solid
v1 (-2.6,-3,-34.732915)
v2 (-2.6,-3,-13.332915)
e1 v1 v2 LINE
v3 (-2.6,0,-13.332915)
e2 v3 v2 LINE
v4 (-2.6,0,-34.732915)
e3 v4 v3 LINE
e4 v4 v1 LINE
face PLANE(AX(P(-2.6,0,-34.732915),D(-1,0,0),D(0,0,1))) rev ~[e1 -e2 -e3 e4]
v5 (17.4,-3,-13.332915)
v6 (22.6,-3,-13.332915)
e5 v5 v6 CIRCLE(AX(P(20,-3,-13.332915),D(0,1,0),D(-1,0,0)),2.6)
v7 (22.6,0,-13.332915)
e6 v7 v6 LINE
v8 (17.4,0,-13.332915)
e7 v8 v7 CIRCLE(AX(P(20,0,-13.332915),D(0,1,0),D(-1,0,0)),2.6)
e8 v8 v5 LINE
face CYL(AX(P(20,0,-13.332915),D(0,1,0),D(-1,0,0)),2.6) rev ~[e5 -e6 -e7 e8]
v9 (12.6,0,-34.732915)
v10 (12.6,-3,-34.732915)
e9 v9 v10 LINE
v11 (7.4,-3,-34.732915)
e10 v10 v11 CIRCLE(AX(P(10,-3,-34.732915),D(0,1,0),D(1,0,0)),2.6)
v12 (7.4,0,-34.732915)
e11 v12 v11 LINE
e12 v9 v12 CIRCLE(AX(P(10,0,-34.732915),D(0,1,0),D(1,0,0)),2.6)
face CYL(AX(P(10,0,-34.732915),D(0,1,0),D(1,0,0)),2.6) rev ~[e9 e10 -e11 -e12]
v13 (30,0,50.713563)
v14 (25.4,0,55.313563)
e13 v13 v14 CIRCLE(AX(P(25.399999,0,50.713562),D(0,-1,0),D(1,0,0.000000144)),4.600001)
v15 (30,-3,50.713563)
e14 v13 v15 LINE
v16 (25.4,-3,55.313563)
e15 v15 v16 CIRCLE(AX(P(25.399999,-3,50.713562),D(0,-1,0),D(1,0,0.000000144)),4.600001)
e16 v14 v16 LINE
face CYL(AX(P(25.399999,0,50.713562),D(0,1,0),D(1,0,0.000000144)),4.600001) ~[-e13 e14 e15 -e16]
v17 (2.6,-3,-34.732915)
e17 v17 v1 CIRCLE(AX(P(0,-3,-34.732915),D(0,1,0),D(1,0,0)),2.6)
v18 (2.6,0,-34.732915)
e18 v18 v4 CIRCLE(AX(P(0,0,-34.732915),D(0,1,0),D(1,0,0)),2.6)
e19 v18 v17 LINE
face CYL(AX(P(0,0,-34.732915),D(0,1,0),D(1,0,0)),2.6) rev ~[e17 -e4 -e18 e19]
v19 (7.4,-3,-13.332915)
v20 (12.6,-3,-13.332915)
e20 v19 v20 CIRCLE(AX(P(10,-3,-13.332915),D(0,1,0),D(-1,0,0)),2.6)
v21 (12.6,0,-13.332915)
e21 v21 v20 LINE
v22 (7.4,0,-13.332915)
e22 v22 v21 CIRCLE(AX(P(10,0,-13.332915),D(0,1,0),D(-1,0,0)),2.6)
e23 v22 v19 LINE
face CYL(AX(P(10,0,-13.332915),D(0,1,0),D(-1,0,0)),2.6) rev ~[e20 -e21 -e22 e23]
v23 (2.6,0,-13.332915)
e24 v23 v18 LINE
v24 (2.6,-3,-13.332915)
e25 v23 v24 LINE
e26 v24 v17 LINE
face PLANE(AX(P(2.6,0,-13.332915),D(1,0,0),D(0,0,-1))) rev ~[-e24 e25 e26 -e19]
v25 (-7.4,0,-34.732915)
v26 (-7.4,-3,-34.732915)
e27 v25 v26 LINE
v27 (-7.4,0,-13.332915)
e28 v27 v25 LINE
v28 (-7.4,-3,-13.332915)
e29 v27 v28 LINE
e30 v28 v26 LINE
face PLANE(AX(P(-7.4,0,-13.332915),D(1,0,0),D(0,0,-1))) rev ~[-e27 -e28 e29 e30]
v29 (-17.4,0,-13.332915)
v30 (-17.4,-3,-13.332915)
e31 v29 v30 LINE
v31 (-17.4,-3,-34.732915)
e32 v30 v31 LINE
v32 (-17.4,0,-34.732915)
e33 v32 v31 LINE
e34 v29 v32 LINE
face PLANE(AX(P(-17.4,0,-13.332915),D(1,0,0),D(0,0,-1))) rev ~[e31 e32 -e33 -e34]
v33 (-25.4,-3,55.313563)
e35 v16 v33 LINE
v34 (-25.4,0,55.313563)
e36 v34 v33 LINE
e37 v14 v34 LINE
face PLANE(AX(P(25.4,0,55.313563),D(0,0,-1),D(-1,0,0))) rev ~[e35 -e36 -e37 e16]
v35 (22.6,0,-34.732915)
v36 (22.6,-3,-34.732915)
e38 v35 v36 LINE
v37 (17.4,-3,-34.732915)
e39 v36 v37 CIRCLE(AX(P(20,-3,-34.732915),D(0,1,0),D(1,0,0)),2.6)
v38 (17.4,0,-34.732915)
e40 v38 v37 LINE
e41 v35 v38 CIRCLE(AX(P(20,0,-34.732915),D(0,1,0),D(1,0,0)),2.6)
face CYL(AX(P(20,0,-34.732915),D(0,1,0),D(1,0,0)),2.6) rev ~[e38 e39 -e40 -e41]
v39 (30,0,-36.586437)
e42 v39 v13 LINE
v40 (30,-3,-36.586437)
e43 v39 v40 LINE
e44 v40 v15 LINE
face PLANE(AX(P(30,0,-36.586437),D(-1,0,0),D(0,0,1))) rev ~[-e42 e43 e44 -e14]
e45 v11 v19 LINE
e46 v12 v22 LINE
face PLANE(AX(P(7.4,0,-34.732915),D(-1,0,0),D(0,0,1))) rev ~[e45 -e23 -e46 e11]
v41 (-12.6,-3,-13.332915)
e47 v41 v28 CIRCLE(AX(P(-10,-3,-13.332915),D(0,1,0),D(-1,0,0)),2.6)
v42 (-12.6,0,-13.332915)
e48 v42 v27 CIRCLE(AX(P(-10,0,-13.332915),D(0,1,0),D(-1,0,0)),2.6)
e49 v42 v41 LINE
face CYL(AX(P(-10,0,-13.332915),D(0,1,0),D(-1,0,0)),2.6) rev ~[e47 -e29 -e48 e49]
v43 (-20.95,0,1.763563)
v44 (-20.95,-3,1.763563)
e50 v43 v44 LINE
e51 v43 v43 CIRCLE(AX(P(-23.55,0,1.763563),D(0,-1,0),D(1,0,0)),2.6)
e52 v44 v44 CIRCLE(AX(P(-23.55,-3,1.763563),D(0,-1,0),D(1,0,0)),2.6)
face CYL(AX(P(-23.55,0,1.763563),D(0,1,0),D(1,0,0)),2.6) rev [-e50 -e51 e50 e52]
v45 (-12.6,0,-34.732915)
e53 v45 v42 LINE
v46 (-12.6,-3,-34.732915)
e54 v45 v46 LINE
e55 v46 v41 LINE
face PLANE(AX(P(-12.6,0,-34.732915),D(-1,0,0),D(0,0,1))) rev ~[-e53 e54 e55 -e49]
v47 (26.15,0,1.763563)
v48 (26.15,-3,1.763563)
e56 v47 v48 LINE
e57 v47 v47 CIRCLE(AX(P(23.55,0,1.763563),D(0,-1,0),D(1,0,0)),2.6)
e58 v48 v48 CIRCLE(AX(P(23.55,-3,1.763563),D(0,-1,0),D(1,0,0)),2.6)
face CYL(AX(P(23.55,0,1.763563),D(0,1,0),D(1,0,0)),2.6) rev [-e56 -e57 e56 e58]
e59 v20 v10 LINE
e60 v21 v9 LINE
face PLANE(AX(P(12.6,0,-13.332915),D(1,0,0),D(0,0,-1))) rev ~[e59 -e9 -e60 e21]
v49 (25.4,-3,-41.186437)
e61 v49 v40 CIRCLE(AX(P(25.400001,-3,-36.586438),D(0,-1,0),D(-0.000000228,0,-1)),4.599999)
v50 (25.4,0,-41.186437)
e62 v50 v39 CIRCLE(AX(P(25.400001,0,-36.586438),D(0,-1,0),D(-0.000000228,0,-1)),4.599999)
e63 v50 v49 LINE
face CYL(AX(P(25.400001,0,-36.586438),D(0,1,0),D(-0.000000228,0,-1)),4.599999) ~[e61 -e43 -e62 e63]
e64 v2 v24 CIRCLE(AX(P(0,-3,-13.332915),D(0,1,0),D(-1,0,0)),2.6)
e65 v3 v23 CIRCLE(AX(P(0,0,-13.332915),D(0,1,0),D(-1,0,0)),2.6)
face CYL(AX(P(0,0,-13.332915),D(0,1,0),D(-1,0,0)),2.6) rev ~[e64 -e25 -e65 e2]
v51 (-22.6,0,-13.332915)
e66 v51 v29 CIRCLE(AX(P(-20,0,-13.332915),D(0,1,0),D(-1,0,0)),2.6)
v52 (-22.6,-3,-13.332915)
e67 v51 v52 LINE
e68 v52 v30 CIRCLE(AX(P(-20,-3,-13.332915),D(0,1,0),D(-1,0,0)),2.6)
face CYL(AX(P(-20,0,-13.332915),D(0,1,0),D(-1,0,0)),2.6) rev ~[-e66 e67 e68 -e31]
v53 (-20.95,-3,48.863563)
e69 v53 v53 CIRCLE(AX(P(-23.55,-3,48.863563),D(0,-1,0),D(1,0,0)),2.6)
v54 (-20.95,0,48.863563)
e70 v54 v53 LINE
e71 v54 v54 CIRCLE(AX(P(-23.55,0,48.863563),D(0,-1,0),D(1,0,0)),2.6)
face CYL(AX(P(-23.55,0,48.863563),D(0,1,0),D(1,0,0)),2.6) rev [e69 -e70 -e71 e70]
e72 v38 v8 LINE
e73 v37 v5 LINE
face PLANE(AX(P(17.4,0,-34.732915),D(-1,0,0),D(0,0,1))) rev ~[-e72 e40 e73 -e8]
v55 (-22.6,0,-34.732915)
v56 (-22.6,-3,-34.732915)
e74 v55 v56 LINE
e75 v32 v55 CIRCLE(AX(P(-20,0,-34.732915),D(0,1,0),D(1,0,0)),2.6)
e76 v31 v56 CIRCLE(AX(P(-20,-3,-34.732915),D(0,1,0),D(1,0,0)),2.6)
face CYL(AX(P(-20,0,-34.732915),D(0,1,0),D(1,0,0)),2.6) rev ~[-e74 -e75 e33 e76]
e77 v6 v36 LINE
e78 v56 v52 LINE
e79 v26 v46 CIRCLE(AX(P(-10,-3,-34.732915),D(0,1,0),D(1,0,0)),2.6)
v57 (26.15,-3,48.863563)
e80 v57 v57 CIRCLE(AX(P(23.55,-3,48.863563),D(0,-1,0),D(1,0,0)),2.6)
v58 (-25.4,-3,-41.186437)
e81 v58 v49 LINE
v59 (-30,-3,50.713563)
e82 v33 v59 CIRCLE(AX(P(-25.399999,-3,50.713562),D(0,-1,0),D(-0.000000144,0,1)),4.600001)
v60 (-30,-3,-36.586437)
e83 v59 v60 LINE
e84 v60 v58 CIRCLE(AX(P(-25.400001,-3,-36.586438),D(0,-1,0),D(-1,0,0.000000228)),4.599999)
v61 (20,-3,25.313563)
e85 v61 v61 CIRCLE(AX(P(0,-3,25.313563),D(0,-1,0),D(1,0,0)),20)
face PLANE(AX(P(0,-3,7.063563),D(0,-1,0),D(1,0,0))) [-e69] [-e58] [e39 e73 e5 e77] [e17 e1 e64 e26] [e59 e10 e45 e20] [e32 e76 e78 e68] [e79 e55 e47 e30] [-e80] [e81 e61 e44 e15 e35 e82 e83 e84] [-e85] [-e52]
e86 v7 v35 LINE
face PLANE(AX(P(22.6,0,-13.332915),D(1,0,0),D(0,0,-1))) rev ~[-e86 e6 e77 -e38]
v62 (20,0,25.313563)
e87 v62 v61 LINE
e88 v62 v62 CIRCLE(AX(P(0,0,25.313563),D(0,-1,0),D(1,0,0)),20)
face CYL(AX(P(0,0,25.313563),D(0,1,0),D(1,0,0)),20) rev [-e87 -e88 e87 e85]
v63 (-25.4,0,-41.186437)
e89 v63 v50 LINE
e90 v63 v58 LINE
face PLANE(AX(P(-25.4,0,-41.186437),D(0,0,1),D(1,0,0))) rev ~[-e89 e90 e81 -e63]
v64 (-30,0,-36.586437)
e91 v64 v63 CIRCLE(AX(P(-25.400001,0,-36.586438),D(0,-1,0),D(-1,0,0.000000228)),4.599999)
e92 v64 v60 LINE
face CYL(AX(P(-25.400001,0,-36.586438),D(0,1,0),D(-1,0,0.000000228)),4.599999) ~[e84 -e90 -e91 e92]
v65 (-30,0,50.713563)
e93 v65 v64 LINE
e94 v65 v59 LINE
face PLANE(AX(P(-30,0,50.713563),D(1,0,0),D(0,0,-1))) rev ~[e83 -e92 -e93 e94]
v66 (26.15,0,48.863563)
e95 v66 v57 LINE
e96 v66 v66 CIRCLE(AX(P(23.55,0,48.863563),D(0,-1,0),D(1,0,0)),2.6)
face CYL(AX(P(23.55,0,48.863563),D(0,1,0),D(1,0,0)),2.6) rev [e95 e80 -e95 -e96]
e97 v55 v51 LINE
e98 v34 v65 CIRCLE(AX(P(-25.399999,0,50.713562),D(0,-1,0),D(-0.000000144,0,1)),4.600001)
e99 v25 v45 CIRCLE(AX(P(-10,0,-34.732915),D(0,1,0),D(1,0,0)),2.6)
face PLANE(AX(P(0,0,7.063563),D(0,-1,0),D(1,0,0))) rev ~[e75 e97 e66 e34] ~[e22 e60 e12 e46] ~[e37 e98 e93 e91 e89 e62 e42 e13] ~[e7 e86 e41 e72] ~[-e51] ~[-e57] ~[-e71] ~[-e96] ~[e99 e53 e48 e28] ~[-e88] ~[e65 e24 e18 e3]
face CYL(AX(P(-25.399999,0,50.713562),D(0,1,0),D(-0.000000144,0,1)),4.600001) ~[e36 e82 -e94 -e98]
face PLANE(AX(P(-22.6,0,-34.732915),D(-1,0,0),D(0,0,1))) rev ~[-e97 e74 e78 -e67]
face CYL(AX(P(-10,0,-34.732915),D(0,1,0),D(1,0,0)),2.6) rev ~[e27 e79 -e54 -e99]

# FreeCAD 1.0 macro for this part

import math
import FreeCAD as App
import Part
import Sketcher
Q = App.Units.Quantity

doc = App.newDocument("Part")
body = doc.addObject("PartDesign::Body", "Body")

# Sketch on XZ plane
sketch1 = body.newObject("Sketcher::SketchObject", "Sketch")
sketch1.AttachmentSupport = (doc.getObject("XZ_Plane"), [""])
sketch1.MapMode = "FlatFace"
sketch1.addGeometry(Part.ArcOfCircle(Part.Circle(App.Vector(-25.4, -36.6, 0), App.Vector(0, 0, 1), 4.6), math.radians(180), math.radians(270)), False)
sketch1.addGeometry(Part.LineSegment(App.Vector(-25.4, -41.2, 0), App.Vector(25.4, -41.2, 0)), False)
sketch1.addGeometry(Part.ArcOfCircle(Part.Circle(App.Vector(25.4, -36.6, 0), App.Vector(0, 0, 1), 4.6), math.radians(-90), math.radians(0)), False)
sketch1.addGeometry(Part.LineSegment(App.Vector(30, -36.6, 0), App.Vector(30, 50.7, 0)), False)
sketch1.addGeometry(Part.ArcOfCircle(Part.Circle(App.Vector(25.4, 50.7, 0), App.Vector(0, 0, 1), 4.6), math.radians(0), math.radians(90)), False)
sketch1.addGeometry(Part.LineSegment(App.Vector(25.4, 55.3, 0), App.Vector(-25.4, 55.3, 0)), False)
sketch1.addGeometry(Part.ArcOfCircle(Part.Circle(App.Vector(-25.4, 50.7, 0), App.Vector(0, 0, 1), 4.6), math.radians(90), math.radians(180)), False)
sketch1.addGeometry(Part.LineSegment(App.Vector(-30, 50.7, 0), App.Vector(-30, -36.6, 0)), False)
sketch1.addGeometry(Part.LineSegment(App.Vector(-22.6, -34.7, 0), App.Vector(-22.6, -13.3, 0)), False)
sketch1.addGeometry(Part.ArcOfCircle(Part.Circle(App.Vector(-20, -13.3, 0), App.Vector(0, 0, 1), 2.6), math.radians(0), math.radians(180)), False)
sketch1.addGeometry(Part.LineSegment(App.Vector(-17.4, -13.3, 0), App.Vector(-17.4, -34.7, 0)), False)
sketch1.addGeometry(Part.ArcOfCircle(Part.Circle(App.Vector(-20, -34.7, 0), App.Vector(0, 0, 1), 2.6), math.radians(180), math.radians(360)), False)
sketch1.addGeometry(Part.LineSegment(App.Vector(-12.6, -34.7, 0), App.Vector(-12.6, -13.3, 0)), False)
sketch1.addGeometry(Part.ArcOfCircle(Part.Circle(App.Vector(-10, -13.3, 0), App.Vector(0, 0, 1), 2.6), math.radians(0), math.radians(180)), False)
sketch1.addGeometry(Part.LineSegment(App.Vector(-7.4, -13.3, 0), App.Vector(-7.4, -34.7, 0)), False)
sketch1.addGeometry(Part.ArcOfCircle(Part.Circle(App.Vector(-10, -34.7, 0), App.Vector(0, 0, 1), 2.6), math.radians(180), math.radians(360)), False)
sketch1.addGeometry(Part.LineSegment(App.Vector(-2.6, -34.7, 0), App.Vector(-2.6, -13.3, 0)), False)
sketch1.addGeometry(Part.ArcOfCircle(Part.Circle(App.Vector(0, -13.3, 0), App.Vector(0, 0, 1), 2.6), math.radians(0), math.radians(180)), False)
sketch1.addGeometry(Part.LineSegment(App.Vector(2.6, -13.3, 0), App.Vector(2.6, -34.7, 0)), False)
sketch1.addGeometry(Part.ArcOfCircle(Part.Circle(App.Vector(0, -34.7, 0), App.Vector(0, 0, 1), 2.6), math.radians(180), math.radians(360)), False)
sketch1.addGeometry(Part.Circle(App.Vector(-23.6, 1.8, 0), App.Vector(0, 0, 1), 2.6), False)
sketch1.addGeometry(Part.LineSegment(App.Vector(7.4, -34.7, 0), App.Vector(7.4, -13.3, 0)), False)
sketch1.addGeometry(Part.ArcOfCircle(Part.Circle(App.Vector(10, -13.3, 0), App.Vector(0, 0, 1), 2.6), math.radians(0), math.radians(180)), False)
sketch1.addGeometry(Part.LineSegment(App.Vector(12.6, -13.3, 0), App.Vector(12.6, -34.7, 0)), False)
sketch1.addGeometry(Part.ArcOfCircle(Part.Circle(App.Vector(10, -34.7, 0), App.Vector(0, 0, 1), 2.6), math.radians(180), math.radians(360)), False)
sketch1.addGeometry(Part.LineSegment(App.Vector(17.4, -34.7, 0), App.Vector(17.4, -13.3, 0)), False)
sketch1.addGeometry(Part.ArcOfCircle(Part.Circle(App.Vector(20, -13.3, 0), App.Vector(0, 0, 1), 2.6), math.radians(0), math.radians(180)), False)
sketch1.addGeometry(Part.LineSegment(App.Vector(22.6, -13.3, 0), App.Vector(22.6, -34.7, 0)), False)
sketch1.addGeometry(Part.ArcOfCircle(Part.Circle(App.Vector(20, -34.7, 0), App.Vector(0, 0, 1), 2.6), math.radians(180), math.radians(360)), False)
sketch1.addGeometry(Part.Circle(App.Vector(23.6, 1.8, 0), App.Vector(0, 0, 1), 2.6), False)
sketch1.addGeometry(Part.Circle(App.Vector(0, 25.3, 0), App.Vector(0, 0, 1), 20), False)
sketch1.addGeometry(Part.Circle(App.Vector(-23.6, 48.9, 0), App.Vector(0, 0, 1), 2.6), False)
sketch1.addGeometry(Part.Circle(App.Vector(23.6, 48.9, 0), App.Vector(0, 0, 1), 2.6), False)
sketch1.addConstraint(Sketcher.Constraint("Tangent", 0, 2, 1, 1))
sketch1.addConstraint(Sketcher.Constraint("Tangent", 1, 2, 2, 1))
sketch1.addConstraint(Sketcher.Constraint("Tangent", 2, 2, 3, 1))
sketch1.addConstraint(Sketcher.Constraint("Tangent", 3, 2, 4, 1))
sketch1.addConstraint(Sketcher.Constraint("Tangent", 4, 2, 5, 1))
sketch1.addConstraint(Sketcher.Constraint("Tangent", 5, 2, 6, 1))
sketch1.addConstraint(Sketcher.Constraint("Tangent", 6, 2, 7, 1))
sketch1.addConstraint(Sketcher.Constraint("Tangent", 7, 2, 0, 1))
sketch1.addConstraint(Sketcher.Constraint("Tangent", 8, 2, 9, 2))
sketch1.addConstraint(Sketcher.Constraint("Tangent", 9, 1, 10, 1))
sketch1.addConstraint(Sketcher.Constraint("Tangent", 10, 2, 11, 2))
sketch1.addConstraint(Sketcher.Constraint("Tangent", 11, 1, 8, 1))
sketch1.addConstraint(Sketcher.Constraint("Tangent", 12, 2, 13, 2))
sketch1.addConstraint(Sketcher.Constraint("Tangent", 13, 1, 14, 1))
sketch1.addConstraint(Sketcher.Constraint("Tangent", 14, 2, 15, 2))
sketch1.addConstraint(Sketcher.Constraint("Tangent", 15, 1, 12, 1))
sketch1.addConstraint(Sketcher.Constraint("Tangent", 16, 2, 17, 2))
sketch1.addConstraint(Sketcher.Constraint("Tangent", 17, 1, 18, 1))
sketch1.addConstraint(Sketcher.Constraint("Tangent", 18, 2, 19, 2))
sketch1.addConstraint(Sketcher.Constraint("Tangent", 19, 1, 16, 1))
sketch1.addConstraint(Sketcher.Constraint("Tangent", 21, 2, 22, 2))
sketch1.addConstraint(Sketcher.Constraint("Tangent", 22, 1, 23, 1))
sketch1.addConstraint(Sketcher.Constraint("Tangent", 23, 2, 24, 2))
sketch1.addConstraint(Sketcher.Constraint("Tangent", 24, 1, 21, 1))
sketch1.addConstraint(Sketcher.Constraint("Tangent", 25, 2, 26, 2))
sketch1.addConstraint(Sketcher.Constraint("Tangent", 26, 1, 27, 1))
sketch1.addConstraint(Sketcher.Constraint("Tangent", 27, 2, 28, 2))
sketch1.addConstraint(Sketcher.Constraint("Tangent", 28, 1, 25, 1))
sketch1.addConstraint(Sketcher.Constraint("Horizontal", 1))
sketch1.addConstraint(Sketcher.Constraint("Vertical", 3))
sketch1.addConstraint(Sketcher.Constraint("Horizontal", 5))
sketch1.addConstraint(Sketcher.Constraint("Vertical", 7))
sketch1.addConstraint(Sketcher.Constraint("Vertical", 8))
sketch1.addConstraint(Sketcher.Constraint("Vertical", 10))
sketch1.addConstraint(Sketcher.Constraint("Vertical", 12))
sketch1.addConstraint(Sketcher.Constraint("Vertical", 14))
sketch1.addConstraint(Sketcher.Constraint("Vertical", 16))
sketch1.addConstraint(Sketcher.Constraint("Vertical", 18))
sketch1.addConstraint(Sketcher.Constraint("Vertical", 21))
sketch1.addConstraint(Sketcher.Constraint("Vertical", 23))
sketch1.addConstraint(Sketcher.Constraint("Vertical", 25))
sketch1.addConstraint(Sketcher.Constraint("Vertical", 27))
sketch1.addConstraint(Sketcher.Constraint("Equal", 0, 2))
sketch1.addConstraint(Sketcher.Constraint("Equal", 2, 4))
sketch1.addConstraint(Sketcher.Constraint("Equal", 4, 6))
sketch1.addConstraint(Sketcher.Constraint("Equal", 11, 13))
sketch1.addConstraint(Sketcher.Constraint("Equal", 15, 17))
sketch1.addConstraint(Sketcher.Constraint("Equal", 19, 20))
sketch1.addConstraint(Sketcher.Constraint("Equal", 20, 22))
sketch1.addConstraint(Sketcher.Constraint("Equal", 24, 26))
sketch1.addConstraint(Sketcher.Constraint("Equal", 28, 29))
sketch1.addConstraint(Sketcher.Constraint("Equal", 29, 31))
sketch1.addConstraint(Sketcher.Constraint("Equal", 31, 32))
sketch1.addConstraint(Sketcher.Constraint("Symmetric", 13, 3, 22, 3, -2))
sketch1.addConstraint(Sketcher.Constraint("Symmetric", 9, 3, 26, 3, -2))
sketch1.addConstraint(Sketcher.Constraint("Symmetric", 20, 3, 29, 3, -2))
sketch1.addConstraint(Sketcher.Constraint("Symmetric", 31, 3, 32, 3, -2))
sketch1.addConstraint(Sketcher.Constraint("PointOnObject", 17, 3, -2))
sketch1.addConstraint(Sketcher.Constraint("PointOnObject", 30, 3, -2))
sketch1.addConstraint(Sketcher.Constraint("Horizontal", 9, 3, 13, 3))
sketch1.addConstraint(Sketcher.Constraint("Horizontal", 11, 3, 15, 3))
sketch1.addConstraint(Sketcher.Constraint("Horizontal", 13, 3, 17, 3))
sketch1.addConstraint(Sketcher.Constraint("Horizontal", 15, 3, 19, 3))
sketch1.addConstraint(Sketcher.Constraint("Horizontal", 19, 3, 24, 3))
sketch1.addConstraint(Sketcher.Constraint("Horizontal", 24, 3, 28, 3))
sketch1.addConstraint(Sketcher.Constraint("Vertical", 20, 3, 31, 3))
sketch1.addConstraint(Sketcher.Constraint("Diameter", 30, Q("40 mm")))
sketch1.addConstraint(Sketcher.Constraint("Diameter", 20, Q("5.2 mm")))
sketch1.addConstraint(Sketcher.Constraint("Radius", 0, Q("4.599999 mm")))
sketch1.addConstraint(Sketcher.Constraint("DistanceX", 1, 1, 1, 2, Q("50.8 mm")))
sketch1.addConstraint(Sketcher.Constraint("DistanceY", 3, 1, 3, 2, Q("87.3 mm")))
sketch1.addConstraint(Sketcher.Constraint("DistanceY", 8, 1, 8, 2, Q("21.4 mm")))
sketch1.addConstraint(Sketcher.Constraint("DistanceX", 9, 3, -1, 1, Q("20 mm")))
sketch1.addConstraint(Sketcher.Constraint("DistanceX", 13, 3, -1, 1, Q("10 mm")))
sketch1.addConstraint(Sketcher.Constraint("DistanceX", -1, 1, 2, 2, Q("30 mm")))
sketch1.addConstraint(Sketcher.Constraint("DistanceY", 30, 3, 4, 2, Q("30 mm")))
sketch1.addConstraint(Sketcher.Constraint("DistanceY", 20, 3, 31, 3, Q("47.1 mm")))
sketch1.addConstraint(Sketcher.Constraint("DistanceX", 31, 3, 32, 3, Q("47.1 mm")))
sketch1.addConstraint(Sketcher.Constraint("DistanceY", 0, 3, 20, 3, Q("38.350001 mm")))
sketch1.addConstraint(Sketcher.Constraint("DistanceY", 0, 3, -1, 1, Q("36.586438 mm")))
sketch1.addConstraint(Sketcher.Constraint("DistanceY", 17, 3, 30, 3, Q("38.646478 mm")))
pad1 = body.newObject("PartDesign::Pad", "Pad")
pad1.Profile = sketch1
pad1.Length = 3

doc.recompute()
